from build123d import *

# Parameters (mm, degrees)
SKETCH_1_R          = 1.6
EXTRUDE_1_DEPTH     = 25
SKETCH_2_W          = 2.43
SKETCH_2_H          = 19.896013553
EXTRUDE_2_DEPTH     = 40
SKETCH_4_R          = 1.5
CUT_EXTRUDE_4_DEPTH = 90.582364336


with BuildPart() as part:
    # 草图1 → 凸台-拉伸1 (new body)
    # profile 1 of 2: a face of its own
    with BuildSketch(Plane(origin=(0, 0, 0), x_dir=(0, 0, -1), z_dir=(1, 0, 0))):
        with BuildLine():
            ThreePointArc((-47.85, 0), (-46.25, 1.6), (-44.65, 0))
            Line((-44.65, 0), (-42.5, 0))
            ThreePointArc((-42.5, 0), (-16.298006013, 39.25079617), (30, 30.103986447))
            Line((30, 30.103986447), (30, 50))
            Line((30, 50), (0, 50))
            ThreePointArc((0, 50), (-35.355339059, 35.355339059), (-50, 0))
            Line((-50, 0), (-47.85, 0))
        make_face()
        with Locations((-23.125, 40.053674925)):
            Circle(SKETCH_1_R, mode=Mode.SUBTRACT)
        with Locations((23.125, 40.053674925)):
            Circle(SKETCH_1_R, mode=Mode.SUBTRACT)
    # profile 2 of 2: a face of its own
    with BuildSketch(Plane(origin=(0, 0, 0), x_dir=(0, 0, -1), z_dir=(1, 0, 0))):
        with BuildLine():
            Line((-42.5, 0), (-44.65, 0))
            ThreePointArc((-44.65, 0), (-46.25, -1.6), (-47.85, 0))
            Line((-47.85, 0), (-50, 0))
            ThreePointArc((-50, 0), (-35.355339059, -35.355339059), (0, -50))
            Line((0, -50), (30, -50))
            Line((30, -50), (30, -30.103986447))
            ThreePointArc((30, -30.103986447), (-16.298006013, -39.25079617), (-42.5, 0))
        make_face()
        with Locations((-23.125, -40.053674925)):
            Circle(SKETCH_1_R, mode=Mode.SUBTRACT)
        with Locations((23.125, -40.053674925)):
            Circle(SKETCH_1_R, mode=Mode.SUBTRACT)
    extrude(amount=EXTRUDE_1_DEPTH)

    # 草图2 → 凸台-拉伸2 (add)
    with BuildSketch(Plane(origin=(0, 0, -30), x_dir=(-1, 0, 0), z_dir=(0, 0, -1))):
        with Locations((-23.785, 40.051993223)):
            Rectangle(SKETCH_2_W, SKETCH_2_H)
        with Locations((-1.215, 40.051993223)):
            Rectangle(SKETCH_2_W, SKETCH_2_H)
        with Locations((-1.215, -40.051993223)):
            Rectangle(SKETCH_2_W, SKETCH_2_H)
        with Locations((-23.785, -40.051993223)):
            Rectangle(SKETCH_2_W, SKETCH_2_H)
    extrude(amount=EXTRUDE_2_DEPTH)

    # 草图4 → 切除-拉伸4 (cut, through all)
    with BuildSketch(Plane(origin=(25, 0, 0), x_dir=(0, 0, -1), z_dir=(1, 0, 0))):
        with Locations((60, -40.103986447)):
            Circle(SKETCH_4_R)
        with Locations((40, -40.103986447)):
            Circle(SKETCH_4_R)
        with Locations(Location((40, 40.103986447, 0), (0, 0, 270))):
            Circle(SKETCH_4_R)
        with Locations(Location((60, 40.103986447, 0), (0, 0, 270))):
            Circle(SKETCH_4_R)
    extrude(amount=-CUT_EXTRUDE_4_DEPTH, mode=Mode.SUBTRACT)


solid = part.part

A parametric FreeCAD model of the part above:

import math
import FreeCAD as App
import Part
import Sketcher

V = App.Vector


def add_polygon(sketch, points):
    """Adds a closed chain of lines whose ends are joined by coincident constraints."""
    first, n = sketch.GeometryCount, len(points)
    for a, b in zip(points, points[1:] + points[:1]):
        sketch.addGeometry(Part.LineSegment(App.Vector(*a, 0), App.Vector(*b, 0)), False)
    for i in range(n):
        sketch.addConstraint(Sketcher.Constraint("Coincident", first + i, 2, first + (i + 1) % n, 1))

doc = App.newDocument("Part")
params = doc.addObject("Spreadsheet::Sheet", "Params")
for row, (alias, value) in enumerate([
    ("sketch1_radius", "50 mm"),
    ("sketch1_diameter", "3.2 mm"),
    ("sketch1_radius2", "42.5 mm"),
    ("sketch1_height", "30 mm"),
    ("pad1_length", "25 mm"),
    ("sketch2_width", "2.43 mm"),
    ("pad2_length", "40 mm"),
    ("sketch3_diameter", "3 mm"),
], start=1):
    params.set(f"A{row}", alias)
    params.set(f"B{row}", "=" + value)
    params.setAlias(f"B{row}", alias)

body = doc.addObject("PartDesign::Body", "Body")

# Sketch on YZ plane
sketch1 = body.newObject("Sketcher::SketchObject", "Sketch")
sketch1.AttachmentSupport = (doc.getObject("YZ_Plane"), [""])
sketch1.MapMode = "FlatFace"
sketch1.addGeometry(Part.ArcOfCircle(Part.Circle(V(0, 0, 0), V(0, 0, 1), 50), math.radians(0), math.radians(90)), False)
sketch1.addGeometry(Part.ArcOfCircle(Part.Circle(V(0, 0, 0), V(0, 0, 1), 50), math.radians(90), math.radians(180)), False)
sketch1.addGeometry(Part.LineSegment(V(-50, 0, 0), V(-50, -30, 0)), False)
sketch1.addGeometry(Part.LineSegment(V(-50, -30, 0), V(-30.103986, -30, 0)), False)
sketch1.addGeometry(Part.ArcOfCircle(Part.Circle(V(0, 0, 0), V(0, 0, 1), 42.5), math.radians(90), math.radians(224.900872)), False)
sketch1.addGeometry(Part.ArcOfCircle(Part.Circle(V(0, 0, 0), V(0, 0, 1), 42.5), math.radians(-44.900872), math.radians(90)), False)
sketch1.addGeometry(Part.LineSegment(V(30.103986, -30, 0), V(50, -30, 0)), False)
sketch1.addGeometry(Part.LineSegment(V(50, -30, 0), V(50, 0, 0)), False)
sketch1.addGeometry(Part.Circle(V(0, 46.25, 0), V(0, 0, 1), 1.6), False)
sketch1.addGeometry(Part.Circle(V(40.053675, 23.125, 0), V(0, 0, 1), 1.6), False)
sketch1.addGeometry(Part.Circle(V(40.053675, -23.125, 0), V(0, 0, 1), 1.6), False)
sketch1.addGeometry(Part.Circle(V(-40.053675, 23.125, 0), V(0, 0, 1), 1.6), False)
sketch1.addGeometry(Part.Circle(V(-40.053675, -23.125, 0), V(0, 0, 1), 1.6), False)
sketch1.addConstraint(Sketcher.Constraint("Tangent", 0, 2, 1, 1))
sketch1.addConstraint(Sketcher.Constraint("Tangent", 1, 2, 2, 1))
sketch1.addConstraint(Sketcher.Constraint("Coincident", 2, 2, 3, 1))
sketch1.addConstraint(Sketcher.Constraint("Coincident", 3, 2, 4, 2))
sketch1.addConstraint(Sketcher.Constraint("Tangent", 4, 1, 5, 2))
sketch1.addConstraint(Sketcher.Constraint("Coincident", 5, 1, 6, 1))
sketch1.addConstraint(Sketcher.Constraint("Coincident", 6, 2, 7, 1))
sketch1.addConstraint(Sketcher.Constraint("Tangent", 7, 2, 0, 1))
sketch1.addConstraint(Sketcher.Constraint("Vertical", 2))
sketch1.addConstraint(Sketcher.Constraint("Horizontal", 3))
sketch1.addConstraint(Sketcher.Constraint("Horizontal", 6))
sketch1.addConstraint(Sketcher.Constraint("Vertical", 7))
sketch1.addConstraint(Sketcher.Constraint("Coincident", 0, 3, -1, 1))
sketch1.addConstraint(Sketcher.Constraint("Coincident", 4, 3, -1, 1))
sketch1.addConstraint(Sketcher.Constraint("Equal", 0, 1))
sketch1.addConstraint(Sketcher.Constraint("Equal", 4, 5))
sketch1.addConstraint(Sketcher.Constraint("Equal", 8, 9))
sketch1.addConstraint(Sketcher.Constraint("Equal", 9, 10))
sketch1.addConstraint(Sketcher.Constraint("Equal", 10, 11))
sketch1.addConstraint(Sketcher.Constraint("Equal", 11, 12))
sketch1.addConstraint(Sketcher.Constraint("Symmetric", 10, 3, 11, 3, -1, 1))
sketch1.addConstraint(Sketcher.Constraint("Symmetric", 9, 3, 12, 3, -1, 1))
sketch1.addConstraint(Sketcher.Constraint("Symmetric", 9, 3, 11, 3, -2))
sketch1.addConstraint(Sketcher.Constraint("PointOnObject", 8, 3, -2))
sketch1.addConstraint(Sketcher.Constraint("PointOnObject", 0, 2, -2))
sketch1.addConstraint(Sketcher.Constraint("PointOnObject", 4, 1, -2))
sketch1.addConstraint(Sketcher.Constraint("Horizontal", 3, 2, 5, 1))
sketch1.addConstraint(Sketcher.Constraint("Radius", 0, 50.0))
sketch1.addConstraint(Sketcher.Constraint("Diameter", 8, 3.2))
sketch1.addConstraint(Sketcher.Constraint("Radius", 4, 42.5))
sketch1.addConstraint(Sketcher.Constraint("DistanceY", 2, 2, 2, 1, 30.0))
sketch1.addConstraint(Sketcher.Constraint("DistanceY", -1, 1, 8, 3, 46.25))
sketch1.addConstraint(Sketcher.Constraint("DistanceY", 10, 3, 9, 3, 46.25))
sketch1.addConstraint(Sketcher.Constraint("DistanceX", 12, 3, 3, 2, 9.949688))
sketch1.setExpression("Constraints[27]", "Params.sketch1_radius")
sketch1.setExpression("Constraints[28]", "Params.sketch1_diameter")
sketch1.setExpression("Constraints[29]", "Params.sketch1_radius2")
sketch1.setExpression("Constraints[30]", "Params.sketch1_height")
pad1 = body.newObject("PartDesign::Pad", "Pad")
pad1.Profile = sketch1
pad1.setExpression("Length", "Params.pad1_length")

# Sketch on XY plane
sketch2 = body.newObject("Sketcher::SketchObject", "Sketch001")
sketch2.AttachmentSupport = (doc.getObject("XY_Plane"), [""])
sketch2.MapMode = "FlatFace"
sketch2.AttachmentOffset = App.Placement(V(0, 0, -30), App.Rotation())
add_polygon(sketch2, [(25, 50), (25, 30.103986), (22.57, 30.103986), (22.57, 50)])  # lines 0-3
add_polygon(sketch2, [(2.43, 50), (2.43, 30.103986), (0, 30.103986), (0, 50)])  # lines 4-7
add_polygon(sketch2, [(2.43, -30.103986), (2.43, -50), (0, -50), (0, -30.103986)])  # lines 8-11
add_polygon(sketch2, [(25, -30.103986), (25, -50), (22.57, -50), (22.57, -30.103986)])  # lines 12-15
sketch2.addConstraint(Sketcher.Constraint("Vertical", 0))
sketch2.addConstraint(Sketcher.Constraint("Horizontal", 1))
sketch2.addConstraint(Sketcher.Constraint("Vertical", 2))
sketch2.addConstraint(Sketcher.Constraint("Horizontal", 3))
sketch2.addConstraint(Sketcher.Constraint("Vertical", 4))
sketch2.addConstraint(Sketcher.Constraint("Horizontal", 5))
sketch2.addConstraint(Sketcher.Constraint("Vertical", 6))
sketch2.addConstraint(Sketcher.Constraint("Horizontal", 7))
sketch2.addConstraint(Sketcher.Constraint("Vertical", 8))
sketch2.addConstraint(Sketcher.Constraint("Horizontal", 9))
sketch2.addConstraint(Sketcher.Constraint("Vertical", 10))
sketch2.addConstraint(Sketcher.Constraint("Horizontal", 11))
sketch2.addConstraint(Sketcher.Constraint("Vertical", 12))
sketch2.addConstraint(Sketcher.Constraint("Horizontal", 13))
sketch2.addConstraint(Sketcher.Constraint("Vertical", 14))
sketch2.addConstraint(Sketcher.Constraint("Horizontal", 15))
sketch2.addConstraint(Sketcher.Constraint("Symmetric", 6, 2, 9, 2, -1, 1))
sketch2.addConstraint(Sketcher.Constraint("Symmetric", 5, 2, 10, 2, -1))
sketch2.addConstraint(Sketcher.Constraint("Symmetric", 3, 2, 12, 2, -1))
sketch2.addConstraint(Sketcher.Constraint("Symmetric", 1, 2, 14, 2, -1))
sketch2.addConstraint(Sketcher.Constraint("Horizontal", 1, 2, 4, 2))
sketch2.addConstraint(Sketcher.Constraint("Horizontal", 3, 2, 6, 2))
sketch2.addConstraint(Sketcher.Constraint("Vertical", 7, 2, 8, 2))
sketch2.addConstraint(Sketcher.Constraint("Equal", 3, 5))
sketch2.addConstraint(Sketcher.Constraint("DistanceX", -1, 1, 0, 2, 25.0))
sketch2.addConstraint(Sketcher.Constraint("DistanceY", -1, 1, 2, 2, 50.0))
sketch2.addConstraint(Sketcher.Constraint("DistanceX", 1, 2, 1, 1, 2.43))
sketch2.addConstraint(Sketcher.Constraint("DistanceY", 0, 2, 0, 1, 19.896014))
sketch2.setExpression("Constraints[42]", "Params.sketch2_width")
pad2 = body.newObject("PartDesign::Pad", "Pad001")
pad2.Profile = sketch2
pad2.setExpression("Length", "Params.pad2_length")
pad2.Reversed = True

# Sketch on YZ plane
sketch3 = body.newObject("Sketcher::SketchObject", "Sketch002")
sketch3.AttachmentSupport = (doc.getObject("YZ_Plane"), [""])
sketch3.MapMode = "FlatFace"
sketch3.AttachmentOffset = App.Placement(V(0, 0, 25), App.Rotation())
sketch3.addGeometry(Part.Circle(V(-40.103986, -60, 0), V(0, 0, 1), 1.5), False)
sketch3.addGeometry(Part.Circle(V(-40.103986, -40, 0), V(0, 0, 1), 1.5), False)
sketch3.addGeometry(Part.Circle(V(40.103986, -40, 0), V(0, 0, 1), 1.5), False)
sketch3.addGeometry(Part.Circle(V(40.103986, -60, 0), V(0, 0, 1), 1.5), False)
sketch3.addConstraint(Sketcher.Constraint("Equal", 0, 1))
sketch3.addConstraint(Sketcher.Constraint("Equal", 1, 2))
sketch3.addConstraint(Sketcher.Constraint("Equal", 2, 3))
sketch3.addConstraint(Sketcher.Constraint("Symmetric", 1, 3, 2, 3, -2))
sketch3.addConstraint(Sketcher.Constraint("Symmetric", 0, 3, 3, 3, -2))
sketch3.addConstraint(Sketcher.Constraint("Vertical", 0, 3, 1, 3))
sketch3.addConstraint(Sketcher.Constraint("Diameter", 0, 3.0))
sketch3.addConstraint(Sketcher.Constraint("DistanceY", 0, 3, -1, 1, 60.0))
sketch3.addConstraint(Sketcher.Constraint("DistanceY", 1, 3, -1, 1, 40.0))
sketch3.addConstraint(Sketcher.Constraint("DistanceX", 0, 3, -1, 1, 40.103986))
sketch3.setExpression("Constraints[6]", "Params.sketch3_diameter")
pocket1 = body.newObject("PartDesign::Pocket", "Pocket")
pocket1.Profile = sketch3
pocket1.Type = "ThroughAll"

doc.recompute()
